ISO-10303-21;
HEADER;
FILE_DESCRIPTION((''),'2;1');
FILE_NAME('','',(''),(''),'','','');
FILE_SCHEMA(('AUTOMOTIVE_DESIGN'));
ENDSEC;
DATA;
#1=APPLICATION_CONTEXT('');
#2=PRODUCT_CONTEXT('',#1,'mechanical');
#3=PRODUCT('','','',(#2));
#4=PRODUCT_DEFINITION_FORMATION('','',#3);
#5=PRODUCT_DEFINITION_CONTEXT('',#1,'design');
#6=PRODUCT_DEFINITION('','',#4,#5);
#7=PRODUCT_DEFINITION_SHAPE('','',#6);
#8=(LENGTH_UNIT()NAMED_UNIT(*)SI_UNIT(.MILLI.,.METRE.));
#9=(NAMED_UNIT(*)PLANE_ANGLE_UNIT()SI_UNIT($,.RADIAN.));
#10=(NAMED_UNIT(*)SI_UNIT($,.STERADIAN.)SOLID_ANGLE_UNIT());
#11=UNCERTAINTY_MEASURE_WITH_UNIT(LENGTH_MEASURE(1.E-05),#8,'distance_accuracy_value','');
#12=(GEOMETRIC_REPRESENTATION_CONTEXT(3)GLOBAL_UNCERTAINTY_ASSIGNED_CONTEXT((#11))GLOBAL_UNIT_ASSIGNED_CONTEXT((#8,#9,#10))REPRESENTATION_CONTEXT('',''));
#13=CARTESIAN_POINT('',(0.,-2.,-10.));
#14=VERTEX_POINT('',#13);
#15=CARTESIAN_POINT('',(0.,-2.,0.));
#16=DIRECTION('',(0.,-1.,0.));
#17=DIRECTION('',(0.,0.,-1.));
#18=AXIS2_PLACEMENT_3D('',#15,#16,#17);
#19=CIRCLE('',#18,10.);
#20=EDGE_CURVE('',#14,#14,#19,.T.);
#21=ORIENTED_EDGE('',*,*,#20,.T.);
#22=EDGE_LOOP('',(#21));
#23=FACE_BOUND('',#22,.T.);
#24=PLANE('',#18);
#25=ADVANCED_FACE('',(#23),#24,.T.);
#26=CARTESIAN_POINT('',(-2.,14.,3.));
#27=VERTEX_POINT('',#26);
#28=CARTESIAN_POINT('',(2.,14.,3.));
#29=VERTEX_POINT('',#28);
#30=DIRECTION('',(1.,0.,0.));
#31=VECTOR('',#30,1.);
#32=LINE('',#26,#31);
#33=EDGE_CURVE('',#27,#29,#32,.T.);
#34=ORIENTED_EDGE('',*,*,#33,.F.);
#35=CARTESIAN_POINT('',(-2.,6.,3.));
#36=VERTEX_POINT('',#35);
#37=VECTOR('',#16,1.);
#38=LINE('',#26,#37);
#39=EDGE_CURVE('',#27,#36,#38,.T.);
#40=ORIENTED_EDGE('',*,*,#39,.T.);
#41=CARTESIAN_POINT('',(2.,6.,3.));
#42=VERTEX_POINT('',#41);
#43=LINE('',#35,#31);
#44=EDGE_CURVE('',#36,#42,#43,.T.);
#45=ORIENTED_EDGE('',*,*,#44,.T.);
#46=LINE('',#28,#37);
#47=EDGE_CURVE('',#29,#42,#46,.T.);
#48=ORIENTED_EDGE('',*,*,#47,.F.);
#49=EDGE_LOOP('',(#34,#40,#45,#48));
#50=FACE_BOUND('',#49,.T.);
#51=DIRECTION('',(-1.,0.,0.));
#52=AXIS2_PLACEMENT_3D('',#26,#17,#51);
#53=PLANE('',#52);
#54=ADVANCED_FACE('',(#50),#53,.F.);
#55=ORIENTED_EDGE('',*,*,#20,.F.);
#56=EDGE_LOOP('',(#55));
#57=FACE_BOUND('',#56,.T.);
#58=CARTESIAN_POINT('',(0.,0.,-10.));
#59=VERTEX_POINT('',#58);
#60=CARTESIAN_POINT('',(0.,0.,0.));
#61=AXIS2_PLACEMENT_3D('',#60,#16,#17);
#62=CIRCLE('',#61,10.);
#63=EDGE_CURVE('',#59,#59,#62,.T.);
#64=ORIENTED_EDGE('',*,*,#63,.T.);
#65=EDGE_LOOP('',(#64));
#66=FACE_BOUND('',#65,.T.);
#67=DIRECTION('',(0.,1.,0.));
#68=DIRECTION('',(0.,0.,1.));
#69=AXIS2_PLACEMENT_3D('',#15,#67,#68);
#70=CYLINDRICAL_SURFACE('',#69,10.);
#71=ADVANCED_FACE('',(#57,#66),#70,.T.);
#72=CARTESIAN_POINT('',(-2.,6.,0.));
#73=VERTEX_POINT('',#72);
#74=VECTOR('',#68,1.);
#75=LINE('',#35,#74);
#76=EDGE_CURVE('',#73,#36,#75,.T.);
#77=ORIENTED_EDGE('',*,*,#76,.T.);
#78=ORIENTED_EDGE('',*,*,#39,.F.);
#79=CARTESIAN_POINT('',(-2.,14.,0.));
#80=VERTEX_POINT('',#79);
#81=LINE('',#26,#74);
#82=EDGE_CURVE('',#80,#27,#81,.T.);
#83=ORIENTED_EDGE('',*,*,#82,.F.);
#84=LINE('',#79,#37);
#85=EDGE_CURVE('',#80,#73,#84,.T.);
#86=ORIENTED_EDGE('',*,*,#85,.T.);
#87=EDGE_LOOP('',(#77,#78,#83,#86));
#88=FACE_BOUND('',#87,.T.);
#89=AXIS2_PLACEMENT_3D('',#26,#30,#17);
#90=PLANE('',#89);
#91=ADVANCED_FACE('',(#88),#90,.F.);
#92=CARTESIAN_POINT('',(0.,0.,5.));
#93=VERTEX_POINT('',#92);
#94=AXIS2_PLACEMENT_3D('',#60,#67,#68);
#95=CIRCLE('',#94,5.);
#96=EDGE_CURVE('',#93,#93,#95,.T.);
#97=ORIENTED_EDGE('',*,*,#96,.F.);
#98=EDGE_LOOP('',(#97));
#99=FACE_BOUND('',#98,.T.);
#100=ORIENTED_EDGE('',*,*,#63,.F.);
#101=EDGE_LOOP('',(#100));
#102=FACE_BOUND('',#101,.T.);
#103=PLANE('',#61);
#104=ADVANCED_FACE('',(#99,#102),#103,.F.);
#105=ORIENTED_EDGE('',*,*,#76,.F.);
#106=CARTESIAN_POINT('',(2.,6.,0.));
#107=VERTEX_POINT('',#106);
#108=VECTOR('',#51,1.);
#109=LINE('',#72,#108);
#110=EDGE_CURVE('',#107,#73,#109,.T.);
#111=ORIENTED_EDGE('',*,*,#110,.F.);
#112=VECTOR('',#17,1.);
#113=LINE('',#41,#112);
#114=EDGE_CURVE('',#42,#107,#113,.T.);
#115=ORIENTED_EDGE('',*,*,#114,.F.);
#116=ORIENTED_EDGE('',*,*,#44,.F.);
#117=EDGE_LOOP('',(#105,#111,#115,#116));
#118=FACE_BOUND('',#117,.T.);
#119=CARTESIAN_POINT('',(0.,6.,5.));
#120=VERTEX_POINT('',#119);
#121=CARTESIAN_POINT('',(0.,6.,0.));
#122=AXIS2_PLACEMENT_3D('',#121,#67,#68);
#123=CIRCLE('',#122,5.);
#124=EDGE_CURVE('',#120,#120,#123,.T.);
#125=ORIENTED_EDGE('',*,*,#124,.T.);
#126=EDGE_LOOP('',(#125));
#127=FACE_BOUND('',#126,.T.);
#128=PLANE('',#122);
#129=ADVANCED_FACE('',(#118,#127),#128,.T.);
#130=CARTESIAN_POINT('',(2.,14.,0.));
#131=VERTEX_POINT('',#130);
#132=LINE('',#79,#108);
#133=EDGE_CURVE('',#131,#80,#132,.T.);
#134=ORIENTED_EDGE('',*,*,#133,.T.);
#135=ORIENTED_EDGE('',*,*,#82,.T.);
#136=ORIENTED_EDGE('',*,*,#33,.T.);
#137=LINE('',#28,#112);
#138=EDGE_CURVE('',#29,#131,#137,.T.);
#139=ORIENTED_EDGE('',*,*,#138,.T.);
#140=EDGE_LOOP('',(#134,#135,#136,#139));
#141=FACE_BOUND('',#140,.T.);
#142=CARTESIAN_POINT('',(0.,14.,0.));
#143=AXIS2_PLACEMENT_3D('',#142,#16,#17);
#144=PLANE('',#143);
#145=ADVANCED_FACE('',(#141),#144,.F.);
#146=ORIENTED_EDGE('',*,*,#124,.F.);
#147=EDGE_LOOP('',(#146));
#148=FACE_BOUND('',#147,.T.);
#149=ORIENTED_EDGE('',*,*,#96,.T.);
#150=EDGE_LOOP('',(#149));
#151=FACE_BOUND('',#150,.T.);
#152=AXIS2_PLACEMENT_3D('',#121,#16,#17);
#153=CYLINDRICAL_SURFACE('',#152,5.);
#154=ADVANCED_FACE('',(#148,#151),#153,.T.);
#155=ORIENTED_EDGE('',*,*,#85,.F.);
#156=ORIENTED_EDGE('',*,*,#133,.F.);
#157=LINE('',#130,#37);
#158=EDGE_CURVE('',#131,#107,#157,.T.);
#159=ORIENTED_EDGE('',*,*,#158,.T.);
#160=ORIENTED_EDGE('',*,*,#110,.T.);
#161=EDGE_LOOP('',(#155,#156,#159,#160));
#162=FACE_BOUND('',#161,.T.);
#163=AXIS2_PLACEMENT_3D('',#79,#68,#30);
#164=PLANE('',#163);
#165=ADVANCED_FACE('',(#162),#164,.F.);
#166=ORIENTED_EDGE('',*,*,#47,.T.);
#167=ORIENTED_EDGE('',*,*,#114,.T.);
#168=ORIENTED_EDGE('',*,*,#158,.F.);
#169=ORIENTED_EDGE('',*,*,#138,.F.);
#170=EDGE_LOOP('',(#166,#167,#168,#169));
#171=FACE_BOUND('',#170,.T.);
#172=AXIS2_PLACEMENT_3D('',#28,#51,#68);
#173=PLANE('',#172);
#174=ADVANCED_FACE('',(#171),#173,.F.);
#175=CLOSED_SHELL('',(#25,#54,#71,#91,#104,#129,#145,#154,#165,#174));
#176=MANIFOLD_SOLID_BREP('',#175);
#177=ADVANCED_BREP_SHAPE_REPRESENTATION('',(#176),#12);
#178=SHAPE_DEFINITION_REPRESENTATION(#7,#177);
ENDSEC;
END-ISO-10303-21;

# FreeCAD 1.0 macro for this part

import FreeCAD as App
import Part
import Sketcher

doc = App.newDocument("Part")
params = doc.addObject("Spreadsheet::Sheet", "Params")
for row, (alias, value) in enumerate([
    ("sketch1_diameter", "10 mm"),
    ("pad1_length", "6 mm"),
    ("sketch2_width", "4 mm"),
    ("sketch2_height", "3 mm"),
    ("pad2_length", "8 mm"),
    ("sketch3_diameter", "20 mm"),
    ("pad3_length", "2 mm"),
], start=1):
    params.set(f"A{row}", alias)
    params.set(f"B{row}", "=" + value)
    params.setAlias(f"B{row}", alias)

body = doc.addObject("PartDesign::Body", "Body")

sketch1 = body.newObject("Sketcher::SketchObject", "Sketch")
sketch1.AttachmentSupport = (doc.getObject("XZ_Plane"), [""])
sketch1.MapMode = "FlatFace"
sketch1.addGeometry(Part.Circle(App.Vector(0, 0, 0), App.Vector(0, 0, 1), 5), False)
sketch1.addConstraint(Sketcher.Constraint("Coincident", 0, 3, -1, 1))
sketch1.addConstraint(Sketcher.Constraint("Diameter", 0, 10.0))
sketch1.setExpression("Constraints[1]", "Params.sketch1_diameter")
pad1 = body.newObject("PartDesign::Pad", "Pad")
pad1.Profile = sketch1
pad1.setExpression("Length", "Params.pad1_length")
pad1.Reversed = True

sketch2 = body.newObject("Sketcher::SketchObject", "Sketch001")
sketch2.AttachmentSupport = (doc.getObject("XZ_Plane"), [""])
sketch2.MapMode = "FlatFace"
sketch2.AttachmentOffset = App.Placement(App.Vector(0, 0, -6), App.Rotation())
sketch2.addGeometry(Part.LineSegment(App.Vector(-2, 0, 0), App.Vector(-2, 3, 0)), False)
sketch2.addGeometry(Part.LineSegment(App.Vector(-2, 3, 0), App.Vector(2, 3, 0)), False)
sketch2.addGeometry(Part.LineSegment(App.Vector(2, 3, 0), App.Vector(2, 0, 0)), False)
sketch2.addGeometry(Part.LineSegment(App.Vector(2, 0, 0), App.Vector(-2, 0, 0)), False)
sketch2.addConstraint(Sketcher.Constraint("Coincident", 0, 2, 1, 1))
sketch2.addConstraint(Sketcher.Constraint("Coincident", 1, 2, 2, 1))
sketch2.addConstraint(Sketcher.Constraint("Coincident", 2, 2, 3, 1))
sketch2.addConstraint(Sketcher.Constraint("Coincident", 3, 2, 0, 1))
sketch2.addConstraint(Sketcher.Constraint("Vertical", 0))
sketch2.addConstraint(Sketcher.Constraint("Horizontal", 1))
sketch2.addConstraint(Sketcher.Constraint("Vertical", 2))
sketch2.addConstraint(Sketcher.Constraint("Horizontal", 3))
sketch2.addConstraint(Sketcher.Constraint("Symmetric", 2, 2, 3, 2, -1, 1))
sketch2.addConstraint(Sketcher.Constraint("DistanceX", 1, 1, 1, 2, 4.0))
sketch2.addConstraint(Sketcher.Constraint("DistanceY", 0, 1, 0, 2, 3.0))
sketch2.setExpression("Constraints[9]", "Params.sketch2_width")
sketch2.setExpression("Constraints[10]", "Params.sketch2_height")
pad2 = body.newObject("PartDesign::Pad", "Pad001")
pad2.Profile = sketch2
pad2.setExpression("Length", "Params.pad2_length")
pad2.Reversed = True

sketch3 = body.newObject("Sketcher::SketchObject", "Sketch002")
sketch3.AttachmentSupport = (doc.getObject("XZ_Plane"), [""])
sketch3.MapMode = "FlatFace"
sketch3.addGeometry(Part.Circle(App.Vector(0, 0, 0), App.Vector(0, 0, 1), 10), False)
sketch3.addConstraint(Sketcher.Constraint("Coincident", 0, 3, -1, 1))
sketch3.addConstraint(Sketcher.Constraint("Diameter", 0, 20.0))
sketch3.setExpression("Constraints[1]", "Params.sketch3_diameter")
pad3 = body.newObject("PartDesign::Pad", "Pad002")
pad3.Profile = sketch3
pad3.setExpression("Length", "Params.pad3_length")

doc.recompute()
